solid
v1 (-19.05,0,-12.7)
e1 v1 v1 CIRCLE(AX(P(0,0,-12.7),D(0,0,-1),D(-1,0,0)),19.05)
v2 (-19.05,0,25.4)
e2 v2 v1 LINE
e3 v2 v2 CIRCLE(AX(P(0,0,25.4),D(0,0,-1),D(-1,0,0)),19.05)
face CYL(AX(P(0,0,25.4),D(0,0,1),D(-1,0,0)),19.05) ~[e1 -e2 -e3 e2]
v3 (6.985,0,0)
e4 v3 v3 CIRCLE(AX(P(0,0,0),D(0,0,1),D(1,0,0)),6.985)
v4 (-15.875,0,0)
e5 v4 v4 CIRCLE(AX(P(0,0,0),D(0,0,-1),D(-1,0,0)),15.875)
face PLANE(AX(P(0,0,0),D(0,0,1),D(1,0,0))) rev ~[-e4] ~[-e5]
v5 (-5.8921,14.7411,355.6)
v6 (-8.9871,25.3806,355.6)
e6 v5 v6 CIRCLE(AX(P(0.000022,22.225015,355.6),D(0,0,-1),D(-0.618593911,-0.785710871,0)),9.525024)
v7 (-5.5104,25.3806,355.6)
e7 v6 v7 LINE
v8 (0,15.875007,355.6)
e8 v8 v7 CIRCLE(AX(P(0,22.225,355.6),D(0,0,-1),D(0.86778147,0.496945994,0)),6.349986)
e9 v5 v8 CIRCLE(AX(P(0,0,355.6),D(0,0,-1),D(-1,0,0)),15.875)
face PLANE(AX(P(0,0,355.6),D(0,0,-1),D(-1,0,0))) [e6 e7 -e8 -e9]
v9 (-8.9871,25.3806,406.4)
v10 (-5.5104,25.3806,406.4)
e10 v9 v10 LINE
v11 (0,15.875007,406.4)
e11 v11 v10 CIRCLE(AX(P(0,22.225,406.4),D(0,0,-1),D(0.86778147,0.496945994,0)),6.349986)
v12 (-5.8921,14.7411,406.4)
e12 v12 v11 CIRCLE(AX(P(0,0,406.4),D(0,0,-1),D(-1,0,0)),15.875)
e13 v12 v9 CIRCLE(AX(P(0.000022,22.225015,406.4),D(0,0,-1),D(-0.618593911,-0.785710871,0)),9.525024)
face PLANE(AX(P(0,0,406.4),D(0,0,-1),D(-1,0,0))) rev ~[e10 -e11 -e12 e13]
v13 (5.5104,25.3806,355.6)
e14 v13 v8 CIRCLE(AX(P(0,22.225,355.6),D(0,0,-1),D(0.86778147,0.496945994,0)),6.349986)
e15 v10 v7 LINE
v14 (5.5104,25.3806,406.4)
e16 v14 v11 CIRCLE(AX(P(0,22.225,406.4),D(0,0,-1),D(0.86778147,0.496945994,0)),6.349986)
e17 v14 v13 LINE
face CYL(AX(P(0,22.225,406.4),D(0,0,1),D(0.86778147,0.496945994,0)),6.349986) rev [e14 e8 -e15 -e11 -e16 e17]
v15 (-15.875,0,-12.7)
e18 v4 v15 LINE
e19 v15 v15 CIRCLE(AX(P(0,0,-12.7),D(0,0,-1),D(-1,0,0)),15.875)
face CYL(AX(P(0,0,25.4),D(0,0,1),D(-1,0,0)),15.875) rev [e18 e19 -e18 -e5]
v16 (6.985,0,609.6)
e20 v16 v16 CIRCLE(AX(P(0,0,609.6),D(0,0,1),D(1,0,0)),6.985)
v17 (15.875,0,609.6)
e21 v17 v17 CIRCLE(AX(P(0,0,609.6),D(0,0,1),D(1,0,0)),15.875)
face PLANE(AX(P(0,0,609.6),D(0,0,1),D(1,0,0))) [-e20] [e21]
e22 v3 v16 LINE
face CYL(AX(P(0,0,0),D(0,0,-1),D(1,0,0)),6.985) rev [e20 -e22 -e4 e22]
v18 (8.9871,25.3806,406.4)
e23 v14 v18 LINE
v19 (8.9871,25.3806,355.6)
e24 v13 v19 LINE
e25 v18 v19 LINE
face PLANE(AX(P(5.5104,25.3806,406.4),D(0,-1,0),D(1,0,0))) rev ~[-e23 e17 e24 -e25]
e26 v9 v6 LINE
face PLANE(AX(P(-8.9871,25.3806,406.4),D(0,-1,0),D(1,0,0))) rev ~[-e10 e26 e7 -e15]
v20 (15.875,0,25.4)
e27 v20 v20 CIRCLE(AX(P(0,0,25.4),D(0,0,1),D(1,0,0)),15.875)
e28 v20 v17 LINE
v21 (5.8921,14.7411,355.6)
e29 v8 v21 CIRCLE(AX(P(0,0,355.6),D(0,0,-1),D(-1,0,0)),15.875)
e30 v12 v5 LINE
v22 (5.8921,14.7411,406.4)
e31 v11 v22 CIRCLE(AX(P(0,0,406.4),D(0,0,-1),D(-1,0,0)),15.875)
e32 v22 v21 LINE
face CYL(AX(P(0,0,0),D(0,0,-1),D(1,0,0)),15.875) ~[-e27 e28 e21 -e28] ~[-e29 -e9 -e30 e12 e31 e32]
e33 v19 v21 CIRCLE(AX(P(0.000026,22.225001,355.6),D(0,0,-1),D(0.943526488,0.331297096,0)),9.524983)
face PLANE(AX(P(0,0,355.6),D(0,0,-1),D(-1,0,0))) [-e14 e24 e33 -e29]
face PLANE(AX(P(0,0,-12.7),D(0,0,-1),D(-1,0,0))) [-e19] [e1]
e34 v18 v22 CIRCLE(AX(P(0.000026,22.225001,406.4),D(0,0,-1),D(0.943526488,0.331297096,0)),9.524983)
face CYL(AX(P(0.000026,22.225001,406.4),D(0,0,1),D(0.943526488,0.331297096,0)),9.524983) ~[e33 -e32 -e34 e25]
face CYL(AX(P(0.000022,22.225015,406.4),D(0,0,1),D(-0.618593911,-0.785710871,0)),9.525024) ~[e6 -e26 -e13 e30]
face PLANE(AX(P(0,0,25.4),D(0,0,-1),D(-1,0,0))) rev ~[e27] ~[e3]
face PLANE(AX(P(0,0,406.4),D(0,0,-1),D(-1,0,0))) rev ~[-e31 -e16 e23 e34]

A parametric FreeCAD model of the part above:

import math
import FreeCAD as App
import Part
import Sketcher

V = App.Vector
Q = App.Units.Quantity

doc = App.newDocument("Part")
params = doc.addObject("Spreadsheet::Sheet", "Params")
for row, (alias, value) in enumerate([
    ("sketch1_diameter", "1.25 in"),
    ("sketch1_diameter2", "0.55 in"),
    ("pad1_length", "24 in"),
    ("sketch2_diameter", "1.5 in"),
    ("sketch2_diameter2", "1.25 in"),
    ("pad2_length", "1.5 in"),
    ("sketch3_radius", "0.25 in"),
    ("sketch3_radius2", "0.625 in"),
    ("sketch3_radius3", "0.375 in"),
    ("pad3_length", "2 in"),
], start=1):
    params.set(f"A{row}", alias)
    params.set(f"B{row}", "=" + value)
    params.setAlias(f"B{row}", alias)

body = doc.addObject("PartDesign::Body", "Body")

sketch1 = doc.addObject("Sketcher::SketchObject", "Sketch")
body.addObject(sketch1)
sketch1.AttachmentSupport = (doc.XY_Plane, [""])
sketch1.MapMode = "FlatFace"
sketch1.addGeometry(Part.Circle(V(0, 0, 0), V(0, 0, 1), 16), False)
sketch1.addGeometry(Part.Circle(V(0, 0, 0), V(0, 0, 1), 7), False)
sketch1.addConstraint(Sketcher.Constraint("Coincident", 0, 3, -1, 1))
sketch1.addConstraint(Sketcher.Constraint("Coincident", 1, 3, -1, 1))
sketch1.addConstraint(Sketcher.Constraint("Diameter", 0, Q("1.25 in")))
sketch1.addConstraint(Sketcher.Constraint("Diameter", 1, Q("0.55 in")))
sketch1.setExpression("Constraints[2]", "Params.sketch1_diameter")
sketch1.setExpression("Constraints[3]", "Params.sketch1_diameter2")
pad1 = doc.addObject("PartDesign::Pad", "Pad")
body.addObject(pad1)
pad1.Profile = sketch1
pad1.setExpression("Length", "Params.pad1_length")

sketch2 = doc.addObject("Sketcher::SketchObject", "Sketch001")
body.addObject(sketch2)
sketch2.AttachmentSupport = (doc.XY_Plane, [""])
sketch2.MapMode = "FlatFace"
sketch2.AttachmentOffset = App.Placement(V(0, 0, 1 * 25.4), App.Rotation())
sketch2.addGeometry(Part.Circle(V(0, 0, 0), V(0, 0, 1), 19), False)
sketch2.addGeometry(Part.Circle(V(0, 0, 0), V(0, 0, 1), 16), False)
sketch2.addConstraint(Sketcher.Constraint("Coincident", 0, 3, -1, 1))
sketch2.addConstraint(Sketcher.Constraint("Coincident", 1, 3, -1, 1))
sketch2.addConstraint(Sketcher.Constraint("Diameter", 0, Q("1.5 in")))
sketch2.addConstraint(Sketcher.Constraint("Diameter", 1, Q("1.25 in")))
sketch2.setExpression("Constraints[2]", "Params.sketch2_diameter")
sketch2.setExpression("Constraints[3]", "Params.sketch2_diameter2")
pad2 = doc.addObject("PartDesign::Pad", "Pad001")
body.addObject(pad2)
pad2.Profile = sketch2
pad2.setExpression("Length", "Params.pad2_length")
pad2.Reversed = True

sketch3 = doc.addObject("Sketcher::SketchObject", "Sketch002")
body.addObject(sketch3)
sketch3.AttachmentSupport = (doc.XY_Plane, [""])
sketch3.MapMode = "FlatFace"
sketch3.AttachmentOffset = App.Placement(V(0, 0, 16 * 25.4), App.Rotation())
sketch3.addGeometry(Part.ArcOfCircle(Part.Circle(V(0, 0, 0), V(0, 0, 1), 15.9), math.radians(90), math.radians(112)), False)
sketch3.addGeometry(Part.ArcOfCircle(Part.Circle(V(0, 22.2, 0), V(0, 0, 1), 9.5), math.radians(161), math.radians(232)), False)
sketch3.addGeometry(Part.LineSegment(V(-9, 25.4, 0), V(-5.5, 25.4, 0)), False)
sketch3.addGeometry(Part.ArcOfCircle(Part.Circle(V(0, 22.2, 0), V(0, 0, 1), 6.3), math.radians(150), math.radians(270)), False)
sketch3.addGeometry(Part.ArcOfCircle(Part.Circle(V(0, 22.2, 0), V(0, 0, 1), 9.5), math.radians(-52), math.radians(19)), False)
sketch3.addGeometry(Part.ArcOfCircle(Part.Circle(V(0, 0, 0), V(0, 0, 1), 15.9), math.radians(68), math.radians(90)), False)
sketch3.addGeometry(Part.ArcOfCircle(Part.Circle(V(0, 22.2, 0), V(0, 0, 1), 6.3), math.radians(-90), math.radians(30)), False)
sketch3.addGeometry(Part.LineSegment(V(5.5, 25.4, 0), V(9, 25.4, 0)), False)
sketch3.addConstraint(Sketcher.Constraint("Coincident", 0, 2, 1, 2))
sketch3.addConstraint(Sketcher.Constraint("Coincident", 1, 1, 2, 1))
sketch3.addConstraint(Sketcher.Constraint("Coincident", 2, 2, 3, 1))
sketch3.addConstraint(Sketcher.Constraint("Tangent", 3, 2, 0, 1))
sketch3.addConstraint(Sketcher.Constraint("Coincident", 4, 1, 5, 1))
sketch3.addConstraint(Sketcher.Constraint("Tangent", 5, 2, 6, 1))
sketch3.addConstraint(Sketcher.Constraint("Coincident", 6, 2, 7, 1))
sketch3.addConstraint(Sketcher.Constraint("Coincident", 7, 2, 4, 2))
sketch3.addConstraint(Sketcher.Constraint("Horizontal", 2))
sketch3.addConstraint(Sketcher.Constraint("Horizontal", 7))
sketch3.addConstraint(Sketcher.Constraint("Coincident", 0, 3, -1, 1))
sketch3.addConstraint(Sketcher.Constraint("Coincident", 5, 3, -1, 1))
sketch3.addConstraint(Sketcher.Constraint("Coincident", 3, 3, 1, 3))
sketch3.addConstraint(Sketcher.Constraint("Coincident", 4, 3, 1, 3))
sketch3.addConstraint(Sketcher.Constraint("Coincident", 6, 3, 1, 3))
sketch3.addConstraint(Sketcher.Constraint("Equal", 1, 4))
sketch3.addConstraint(Sketcher.Constraint("Equal", 0, 5))
sketch3.addConstraint(Sketcher.Constraint("Symmetric", 2, 2, 6, 2, -2))
sketch3.addConstraint(Sketcher.Constraint("Radius", 3, Q("0.25 in")))
sketch3.addConstraint(Sketcher.Constraint("Radius", 0, Q("0.625 in")))
sketch3.addConstraint(Sketcher.Constraint("Radius", 1, Q("0.375 in")))
sketch3.addConstraint(Sketcher.Constraint("DistanceX", 2, 1, 2, 2, 3.4767))
sketch3.setExpression("Constraints[18]", "Params.sketch3_radius")
sketch3.setExpression("Constraints[19]", "Params.sketch3_radius2")
sketch3.setExpression("Constraints[20]", "Params.sketch3_radius3")
pad3 = doc.addObject("PartDesign::Pad", "Pad002")
body.addObject(pad3)
pad3.Profile = sketch3
pad3.setExpression("Length", "Params.pad3_length")
pad3.Reversed = True

doc.recompute()
